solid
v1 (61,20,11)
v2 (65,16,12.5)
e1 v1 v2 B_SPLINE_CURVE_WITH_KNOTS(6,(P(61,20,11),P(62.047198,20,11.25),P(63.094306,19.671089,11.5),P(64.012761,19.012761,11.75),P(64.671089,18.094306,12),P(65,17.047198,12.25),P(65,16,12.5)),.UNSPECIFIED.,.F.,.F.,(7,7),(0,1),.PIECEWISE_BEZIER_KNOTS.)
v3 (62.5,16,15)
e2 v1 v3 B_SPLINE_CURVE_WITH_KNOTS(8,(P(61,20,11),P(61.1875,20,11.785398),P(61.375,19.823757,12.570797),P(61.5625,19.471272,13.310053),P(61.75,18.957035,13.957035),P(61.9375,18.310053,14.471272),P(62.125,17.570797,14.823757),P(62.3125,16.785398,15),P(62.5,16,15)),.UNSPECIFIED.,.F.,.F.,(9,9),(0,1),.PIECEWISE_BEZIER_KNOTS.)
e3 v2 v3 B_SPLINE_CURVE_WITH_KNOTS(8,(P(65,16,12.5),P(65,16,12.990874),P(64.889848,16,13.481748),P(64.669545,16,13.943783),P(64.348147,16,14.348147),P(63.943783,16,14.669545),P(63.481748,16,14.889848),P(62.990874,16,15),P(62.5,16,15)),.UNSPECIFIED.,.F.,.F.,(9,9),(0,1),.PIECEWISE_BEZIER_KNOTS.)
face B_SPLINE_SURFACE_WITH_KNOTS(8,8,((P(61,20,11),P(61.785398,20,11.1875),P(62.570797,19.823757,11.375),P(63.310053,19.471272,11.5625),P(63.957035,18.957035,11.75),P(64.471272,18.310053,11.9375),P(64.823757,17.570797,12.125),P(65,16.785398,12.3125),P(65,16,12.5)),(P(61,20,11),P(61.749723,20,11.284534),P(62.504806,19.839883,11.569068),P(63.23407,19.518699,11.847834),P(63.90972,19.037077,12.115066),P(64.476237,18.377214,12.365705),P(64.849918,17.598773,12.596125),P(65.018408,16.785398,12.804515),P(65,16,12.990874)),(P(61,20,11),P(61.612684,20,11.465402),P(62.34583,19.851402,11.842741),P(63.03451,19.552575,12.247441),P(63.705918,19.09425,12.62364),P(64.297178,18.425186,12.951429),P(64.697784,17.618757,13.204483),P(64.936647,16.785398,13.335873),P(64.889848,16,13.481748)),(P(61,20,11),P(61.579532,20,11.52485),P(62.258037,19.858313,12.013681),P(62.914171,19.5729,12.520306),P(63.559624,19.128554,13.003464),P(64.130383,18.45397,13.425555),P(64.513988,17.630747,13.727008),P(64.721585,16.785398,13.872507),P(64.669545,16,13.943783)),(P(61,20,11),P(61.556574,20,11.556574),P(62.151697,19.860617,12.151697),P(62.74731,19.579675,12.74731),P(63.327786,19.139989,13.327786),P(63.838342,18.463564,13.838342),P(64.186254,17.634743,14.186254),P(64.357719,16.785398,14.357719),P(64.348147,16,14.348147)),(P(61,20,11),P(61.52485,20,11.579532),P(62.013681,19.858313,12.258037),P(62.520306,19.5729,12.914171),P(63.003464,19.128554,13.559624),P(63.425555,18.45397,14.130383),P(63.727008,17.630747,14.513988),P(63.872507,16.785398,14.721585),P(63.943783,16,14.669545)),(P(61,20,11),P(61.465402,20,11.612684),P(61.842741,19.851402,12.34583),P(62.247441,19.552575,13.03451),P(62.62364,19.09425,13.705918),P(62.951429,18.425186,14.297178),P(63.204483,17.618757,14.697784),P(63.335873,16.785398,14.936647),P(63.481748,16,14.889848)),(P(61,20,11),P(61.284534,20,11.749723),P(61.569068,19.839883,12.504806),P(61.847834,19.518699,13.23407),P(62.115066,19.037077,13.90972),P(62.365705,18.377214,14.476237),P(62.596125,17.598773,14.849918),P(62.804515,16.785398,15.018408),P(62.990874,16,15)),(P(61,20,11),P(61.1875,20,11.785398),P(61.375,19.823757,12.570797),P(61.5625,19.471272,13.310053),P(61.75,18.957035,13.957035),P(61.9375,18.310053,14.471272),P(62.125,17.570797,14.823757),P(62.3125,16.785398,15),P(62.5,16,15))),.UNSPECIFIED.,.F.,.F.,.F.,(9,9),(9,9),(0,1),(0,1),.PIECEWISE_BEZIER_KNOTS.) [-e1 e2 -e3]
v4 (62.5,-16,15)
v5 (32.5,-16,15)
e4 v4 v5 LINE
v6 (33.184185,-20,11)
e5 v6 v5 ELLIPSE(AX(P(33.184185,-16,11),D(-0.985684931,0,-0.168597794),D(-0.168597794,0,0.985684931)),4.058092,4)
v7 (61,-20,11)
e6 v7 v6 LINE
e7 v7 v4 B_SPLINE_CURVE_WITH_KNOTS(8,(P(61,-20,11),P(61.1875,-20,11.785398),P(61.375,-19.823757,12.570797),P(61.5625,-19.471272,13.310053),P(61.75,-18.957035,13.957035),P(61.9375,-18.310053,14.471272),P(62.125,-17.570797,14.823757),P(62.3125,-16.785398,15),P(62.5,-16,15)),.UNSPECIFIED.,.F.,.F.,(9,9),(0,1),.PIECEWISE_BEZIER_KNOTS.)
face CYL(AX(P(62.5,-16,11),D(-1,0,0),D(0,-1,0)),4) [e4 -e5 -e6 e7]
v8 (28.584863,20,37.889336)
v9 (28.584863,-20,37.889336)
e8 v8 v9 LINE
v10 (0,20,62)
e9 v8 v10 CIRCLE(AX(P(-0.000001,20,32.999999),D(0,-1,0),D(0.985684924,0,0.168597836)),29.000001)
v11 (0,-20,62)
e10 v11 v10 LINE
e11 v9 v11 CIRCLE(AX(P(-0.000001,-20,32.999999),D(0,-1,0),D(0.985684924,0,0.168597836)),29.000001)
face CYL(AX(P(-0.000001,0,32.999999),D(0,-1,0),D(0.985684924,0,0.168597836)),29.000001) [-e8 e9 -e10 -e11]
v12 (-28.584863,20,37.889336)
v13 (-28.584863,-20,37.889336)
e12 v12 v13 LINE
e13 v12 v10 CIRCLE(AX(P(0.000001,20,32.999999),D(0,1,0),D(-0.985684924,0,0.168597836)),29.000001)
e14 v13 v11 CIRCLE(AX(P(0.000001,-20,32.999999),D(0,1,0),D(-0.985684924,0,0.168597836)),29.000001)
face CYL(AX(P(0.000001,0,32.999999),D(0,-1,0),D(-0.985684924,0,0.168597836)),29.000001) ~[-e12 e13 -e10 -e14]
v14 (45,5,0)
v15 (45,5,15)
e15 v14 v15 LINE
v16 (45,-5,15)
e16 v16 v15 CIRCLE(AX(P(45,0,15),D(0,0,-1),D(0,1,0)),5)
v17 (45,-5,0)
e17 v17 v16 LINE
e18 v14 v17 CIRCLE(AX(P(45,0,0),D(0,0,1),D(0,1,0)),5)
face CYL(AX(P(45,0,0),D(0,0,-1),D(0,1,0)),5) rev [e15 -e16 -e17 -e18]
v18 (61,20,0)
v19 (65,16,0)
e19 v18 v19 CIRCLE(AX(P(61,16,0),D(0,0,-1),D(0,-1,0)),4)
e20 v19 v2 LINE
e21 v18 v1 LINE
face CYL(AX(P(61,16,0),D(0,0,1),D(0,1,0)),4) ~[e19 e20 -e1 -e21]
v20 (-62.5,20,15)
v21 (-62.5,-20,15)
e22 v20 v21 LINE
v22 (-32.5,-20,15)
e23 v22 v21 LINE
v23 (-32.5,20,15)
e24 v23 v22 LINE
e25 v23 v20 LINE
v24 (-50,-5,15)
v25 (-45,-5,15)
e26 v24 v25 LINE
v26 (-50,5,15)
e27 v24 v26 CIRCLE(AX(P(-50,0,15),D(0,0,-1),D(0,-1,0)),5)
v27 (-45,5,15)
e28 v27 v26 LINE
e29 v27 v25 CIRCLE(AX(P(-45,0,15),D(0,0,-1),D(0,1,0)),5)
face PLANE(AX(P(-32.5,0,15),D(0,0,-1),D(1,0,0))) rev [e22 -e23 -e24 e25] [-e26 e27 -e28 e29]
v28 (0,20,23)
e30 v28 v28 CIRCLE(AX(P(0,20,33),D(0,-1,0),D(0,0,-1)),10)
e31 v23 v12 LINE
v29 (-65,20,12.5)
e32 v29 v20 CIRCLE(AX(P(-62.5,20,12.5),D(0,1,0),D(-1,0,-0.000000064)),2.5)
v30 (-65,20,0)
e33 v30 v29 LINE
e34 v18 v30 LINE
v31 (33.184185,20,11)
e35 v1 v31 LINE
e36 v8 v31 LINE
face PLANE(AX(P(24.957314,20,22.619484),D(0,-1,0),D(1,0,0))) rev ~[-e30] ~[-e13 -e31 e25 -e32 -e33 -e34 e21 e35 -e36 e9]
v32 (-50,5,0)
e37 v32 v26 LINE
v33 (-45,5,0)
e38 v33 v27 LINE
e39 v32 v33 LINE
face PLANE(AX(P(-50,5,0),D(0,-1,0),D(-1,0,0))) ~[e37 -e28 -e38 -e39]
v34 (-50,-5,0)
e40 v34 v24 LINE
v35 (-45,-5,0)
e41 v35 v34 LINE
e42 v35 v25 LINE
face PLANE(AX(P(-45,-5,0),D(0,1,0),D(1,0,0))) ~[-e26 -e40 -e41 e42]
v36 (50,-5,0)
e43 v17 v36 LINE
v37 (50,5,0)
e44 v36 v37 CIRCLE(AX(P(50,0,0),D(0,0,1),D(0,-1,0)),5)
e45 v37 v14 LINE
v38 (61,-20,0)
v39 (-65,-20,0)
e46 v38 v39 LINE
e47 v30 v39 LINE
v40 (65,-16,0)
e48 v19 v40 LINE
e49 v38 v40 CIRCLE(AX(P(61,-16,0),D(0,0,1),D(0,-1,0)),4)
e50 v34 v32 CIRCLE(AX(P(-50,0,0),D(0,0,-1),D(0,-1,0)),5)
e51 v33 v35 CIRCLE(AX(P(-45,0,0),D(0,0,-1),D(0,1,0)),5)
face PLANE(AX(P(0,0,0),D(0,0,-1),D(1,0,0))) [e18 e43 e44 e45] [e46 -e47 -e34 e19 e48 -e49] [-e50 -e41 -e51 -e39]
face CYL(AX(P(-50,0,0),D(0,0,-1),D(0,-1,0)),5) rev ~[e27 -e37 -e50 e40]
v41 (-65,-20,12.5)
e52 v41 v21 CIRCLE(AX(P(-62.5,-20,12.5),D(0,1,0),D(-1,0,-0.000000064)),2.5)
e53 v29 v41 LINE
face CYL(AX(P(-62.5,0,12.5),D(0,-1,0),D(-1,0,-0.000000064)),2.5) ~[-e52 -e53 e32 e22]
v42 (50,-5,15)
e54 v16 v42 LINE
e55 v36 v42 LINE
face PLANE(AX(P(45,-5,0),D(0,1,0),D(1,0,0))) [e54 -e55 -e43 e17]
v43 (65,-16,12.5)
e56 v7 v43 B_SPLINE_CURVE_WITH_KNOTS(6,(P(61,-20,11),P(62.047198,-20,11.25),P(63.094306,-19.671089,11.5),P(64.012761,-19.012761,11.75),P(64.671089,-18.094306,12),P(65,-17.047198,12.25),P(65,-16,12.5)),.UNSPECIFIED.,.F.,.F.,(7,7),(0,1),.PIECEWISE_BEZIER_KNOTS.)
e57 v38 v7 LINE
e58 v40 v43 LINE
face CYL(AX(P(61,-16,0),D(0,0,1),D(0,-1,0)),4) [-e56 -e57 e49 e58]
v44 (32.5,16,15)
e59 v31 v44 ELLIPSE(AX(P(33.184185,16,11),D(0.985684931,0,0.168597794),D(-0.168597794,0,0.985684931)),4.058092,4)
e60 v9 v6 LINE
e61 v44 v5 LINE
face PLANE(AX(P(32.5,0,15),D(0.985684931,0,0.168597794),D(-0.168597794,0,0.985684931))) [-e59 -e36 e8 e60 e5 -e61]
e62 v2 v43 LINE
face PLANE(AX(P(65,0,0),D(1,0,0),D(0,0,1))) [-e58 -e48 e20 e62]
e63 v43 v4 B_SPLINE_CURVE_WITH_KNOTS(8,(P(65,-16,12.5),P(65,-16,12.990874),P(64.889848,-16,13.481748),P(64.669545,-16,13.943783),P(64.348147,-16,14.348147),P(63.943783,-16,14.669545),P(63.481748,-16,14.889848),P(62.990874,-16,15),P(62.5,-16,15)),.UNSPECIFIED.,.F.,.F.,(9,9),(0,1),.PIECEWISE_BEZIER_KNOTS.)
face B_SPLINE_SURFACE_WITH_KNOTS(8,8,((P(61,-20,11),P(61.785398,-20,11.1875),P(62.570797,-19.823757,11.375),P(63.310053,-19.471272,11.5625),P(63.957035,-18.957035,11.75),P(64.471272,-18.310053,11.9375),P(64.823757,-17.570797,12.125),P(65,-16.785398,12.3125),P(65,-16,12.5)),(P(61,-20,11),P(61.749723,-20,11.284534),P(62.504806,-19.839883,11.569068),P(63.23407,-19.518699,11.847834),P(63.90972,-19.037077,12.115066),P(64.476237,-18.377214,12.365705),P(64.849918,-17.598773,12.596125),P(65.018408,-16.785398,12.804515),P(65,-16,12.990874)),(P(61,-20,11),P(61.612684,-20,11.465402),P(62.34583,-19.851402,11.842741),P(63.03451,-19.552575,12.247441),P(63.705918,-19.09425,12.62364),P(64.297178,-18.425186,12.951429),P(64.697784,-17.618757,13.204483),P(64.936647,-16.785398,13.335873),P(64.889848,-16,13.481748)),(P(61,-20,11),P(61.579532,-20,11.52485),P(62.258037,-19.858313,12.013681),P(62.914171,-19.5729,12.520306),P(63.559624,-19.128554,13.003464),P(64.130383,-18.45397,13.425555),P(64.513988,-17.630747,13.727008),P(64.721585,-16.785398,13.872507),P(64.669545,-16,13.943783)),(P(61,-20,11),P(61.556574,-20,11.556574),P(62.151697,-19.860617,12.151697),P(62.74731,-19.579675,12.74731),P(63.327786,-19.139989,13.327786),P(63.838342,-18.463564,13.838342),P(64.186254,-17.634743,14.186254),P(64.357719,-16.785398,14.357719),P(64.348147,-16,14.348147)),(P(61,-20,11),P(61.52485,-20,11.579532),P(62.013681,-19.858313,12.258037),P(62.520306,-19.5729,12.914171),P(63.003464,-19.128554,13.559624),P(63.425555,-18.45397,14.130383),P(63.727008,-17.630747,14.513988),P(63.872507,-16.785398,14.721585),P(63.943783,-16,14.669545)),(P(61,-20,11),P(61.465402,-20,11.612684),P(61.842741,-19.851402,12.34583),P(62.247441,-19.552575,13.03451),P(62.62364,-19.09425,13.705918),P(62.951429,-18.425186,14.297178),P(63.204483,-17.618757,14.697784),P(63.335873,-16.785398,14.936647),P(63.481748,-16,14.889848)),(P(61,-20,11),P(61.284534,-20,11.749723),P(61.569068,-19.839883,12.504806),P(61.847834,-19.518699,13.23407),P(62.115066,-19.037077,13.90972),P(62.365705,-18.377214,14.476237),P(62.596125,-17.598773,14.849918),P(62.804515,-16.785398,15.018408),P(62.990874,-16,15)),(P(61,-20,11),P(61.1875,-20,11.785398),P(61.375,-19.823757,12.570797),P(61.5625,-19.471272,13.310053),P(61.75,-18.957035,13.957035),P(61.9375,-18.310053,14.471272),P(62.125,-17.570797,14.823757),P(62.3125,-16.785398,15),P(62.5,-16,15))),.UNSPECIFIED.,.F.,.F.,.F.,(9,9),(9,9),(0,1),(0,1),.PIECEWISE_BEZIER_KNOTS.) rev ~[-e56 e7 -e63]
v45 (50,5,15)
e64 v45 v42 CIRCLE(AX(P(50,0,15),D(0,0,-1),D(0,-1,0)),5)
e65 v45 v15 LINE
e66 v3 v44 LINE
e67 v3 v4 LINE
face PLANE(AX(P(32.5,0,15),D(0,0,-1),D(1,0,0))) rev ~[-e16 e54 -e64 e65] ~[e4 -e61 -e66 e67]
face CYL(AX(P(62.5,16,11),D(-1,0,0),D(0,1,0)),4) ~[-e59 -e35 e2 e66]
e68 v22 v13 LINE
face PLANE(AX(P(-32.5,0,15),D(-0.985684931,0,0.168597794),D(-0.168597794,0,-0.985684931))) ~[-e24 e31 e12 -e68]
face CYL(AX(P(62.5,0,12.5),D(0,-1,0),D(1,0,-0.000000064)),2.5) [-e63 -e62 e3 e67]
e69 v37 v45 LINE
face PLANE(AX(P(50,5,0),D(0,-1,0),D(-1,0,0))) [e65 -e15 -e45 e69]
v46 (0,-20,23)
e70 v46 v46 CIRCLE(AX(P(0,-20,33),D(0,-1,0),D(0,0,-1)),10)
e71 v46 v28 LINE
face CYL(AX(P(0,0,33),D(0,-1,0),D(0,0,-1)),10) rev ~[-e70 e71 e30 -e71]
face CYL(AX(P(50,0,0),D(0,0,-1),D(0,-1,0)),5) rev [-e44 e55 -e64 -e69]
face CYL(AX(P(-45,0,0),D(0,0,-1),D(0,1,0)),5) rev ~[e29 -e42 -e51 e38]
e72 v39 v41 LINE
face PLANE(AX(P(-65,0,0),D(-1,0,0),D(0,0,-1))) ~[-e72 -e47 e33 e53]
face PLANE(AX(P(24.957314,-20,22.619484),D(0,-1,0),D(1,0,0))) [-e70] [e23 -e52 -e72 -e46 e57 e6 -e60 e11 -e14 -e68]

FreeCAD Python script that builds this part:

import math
import FreeCAD as App
import Part
import Sketcher
Q = App.Units.Quantity


def edges_at(feature, points):
    """Names of the edges that pass closest to the given points."""
    edges = feature.Shape.Edges
    near = lambda p: min(range(len(edges)), key=lambda i: edges[i].distToShape(Part.Vertex(*p))[0])
    return sorted({f"Edge{near(p) + 1}" for p in points})

doc = App.newDocument("Part")
body = doc.addObject("PartDesign::Body", "Body")

sketch1 = body.newObject("Sketcher::SketchObject", "Sketch")
sketch1.AttachmentSupport = (doc.getObject("XZ_Plane"), [""])
sketch1.MapMode = "FlatFace"
sketch1.addGeometry(Part.LineSegment(App.Vector(0, 23, 0), App.Vector(0, 0, 0)), False)
sketch1.addGeometry(Part.LineSegment(App.Vector(0, 0, 0), App.Vector(65, 0, 0)), False)
sketch1.addGeometry(Part.LineSegment(App.Vector(65, 0, 0), App.Vector(65, 12.5, 0)), False)
sketch1.addGeometry(Part.ArcOfCircle(Part.Circle(App.Vector(62.5, 12.5, 0), App.Vector(0, 0, 1), 2.5), math.radians(0), math.radians(90)), False)
sketch1.addGeometry(Part.LineSegment(App.Vector(62.5, 15, 0), App.Vector(32.5, 15, 0)), False)
sketch1.addGeometry(Part.LineSegment(App.Vector(32.5, 15, 0), App.Vector(28.6, 37.9, 0)), False)
sketch1.addGeometry(Part.ArcOfCircle(Part.Circle(App.Vector(0, 33, 0), App.Vector(0, 0, 1), 29), math.radians(10), math.radians(90)), False)
sketch1.addGeometry(Part.LineSegment(App.Vector(0, 62, 0), App.Vector(0, 43, 0)), False)
sketch1.addGeometry(Part.ArcOfCircle(Part.Circle(App.Vector(0, 33, 0), App.Vector(0, 0, 1), 10), math.radians(-90), math.radians(90)), False)
sketch1.addConstraint(Sketcher.Constraint("Coincident", 0, 2, 1, 1))
sketch1.addConstraint(Sketcher.Constraint("Coincident", 1, 2, 2, 1))
sketch1.addConstraint(Sketcher.Constraint("Tangent", 2, 2, 3, 1))
sketch1.addConstraint(Sketcher.Constraint("Tangent", 3, 2, 4, 1))
sketch1.addConstraint(Sketcher.Constraint("Coincident", 4, 2, 5, 1))
sketch1.addConstraint(Sketcher.Constraint("Tangent", 5, 2, 6, 1))
sketch1.addConstraint(Sketcher.Constraint("Coincident", 6, 2, 7, 1))
sketch1.addConstraint(Sketcher.Constraint("Coincident", 7, 2, 8, 2))
sketch1.addConstraint(Sketcher.Constraint("Coincident", 8, 1, 0, 1))
sketch1.addConstraint(Sketcher.Constraint("Vertical", 0))
sketch1.addConstraint(Sketcher.Constraint("Horizontal", 1))
sketch1.addConstraint(Sketcher.Constraint("Vertical", 2))
sketch1.addConstraint(Sketcher.Constraint("Horizontal", 4))
sketch1.addConstraint(Sketcher.Constraint("Vertical", 7))
sketch1.addConstraint(Sketcher.Constraint("Coincident", 0, 2, -1, 1))
sketch1.addConstraint(Sketcher.Constraint("Coincident", 8, 3, 6, 3))
sketch1.addConstraint(Sketcher.Constraint("PointOnObject", 6, 3, -2))
sketch1.addConstraint(Sketcher.Constraint("PointOnObject", 6, 2, -2))
sketch1.addConstraint(Sketcher.Constraint("Radius", 6, Q("29.000001 mm")))
sketch1.addConstraint(Sketcher.Constraint("Radius", 8, Q("10 mm")))
sketch1.addConstraint(Sketcher.Constraint("Radius", 3, Q("2.5 mm")))
sketch1.addConstraint(Sketcher.Constraint("DistanceX", 1, 1, 1, 2, Q("65 mm")))
sketch1.addConstraint(Sketcher.Constraint("DistanceX", 4, 2, 4, 1, Q("30 mm")))
sketch1.addConstraint(Sketcher.Constraint("DistanceY", 0, 2, 0, 1, Q("23 mm")))
sketch1.addConstraint(Sketcher.Constraint("DistanceY", 2, 1, 2, 2, Q("12.5 mm")))
pad1 = body.newObject("PartDesign::Pad", "Pad")
pad1.Profile = sketch1
pad1.Length = 40
pad1.Midplane = True

sketch2 = body.newObject("Sketcher::SketchObject", "Sketch001")
sketch2.AttachmentSupport = (doc.getObject("XY_Plane"), [""])
sketch2.MapMode = "FlatFace"
sketch2.addGeometry(Part.ArcOfCircle(Part.Circle(App.Vector(45, 0, 0), App.Vector(0, 0, 1), 5), math.radians(90), math.radians(270)), False)
sketch2.addGeometry(Part.LineSegment(App.Vector(45, -5, 0), App.Vector(50, -5, 0)), False)
sketch2.addGeometry(Part.ArcOfCircle(Part.Circle(App.Vector(50, 0, 0), App.Vector(0, 0, 1), 5), math.radians(-90), math.radians(90)), False)
sketch2.addGeometry(Part.LineSegment(App.Vector(50, 5, 0), App.Vector(45, 5, 0)), False)
sketch2.addConstraint(Sketcher.Constraint("Tangent", 0, 2, 1, 1))
sketch2.addConstraint(Sketcher.Constraint("Tangent", 1, 2, 2, 1))
sketch2.addConstraint(Sketcher.Constraint("Tangent", 2, 2, 3, 1))
sketch2.addConstraint(Sketcher.Constraint("Tangent", 3, 2, 0, 1))
sketch2.addConstraint(Sketcher.Constraint("Horizontal", 1))
sketch2.addConstraint(Sketcher.Constraint("Horizontal", 3))
sketch2.addConstraint(Sketcher.Constraint("PointOnObject", 0, 3, -1))
sketch2.addConstraint(Sketcher.Constraint("Radius", 0, Q("5 mm")))
sketch2.addConstraint(Sketcher.Constraint("DistanceX", 1, 1, 1, 2, Q("5 mm")))
sketch2.addConstraint(Sketcher.Constraint("DistanceX", -1, 1, 0, 3, Q("45 mm")))
pocket1 = body.newObject("PartDesign::Pocket", "Pocket")
pocket1.Profile = sketch2
pocket1.Type = "ThroughAll"
pocket1.Reversed = True
doc.recompute()

mirrored = body.newObject("PartDesign::Mirrored", "Mirrored")
mirrored.Originals = [pad1, pocket1]
mirrored.MirrorPlane = (doc.getObject("YZ_Plane"), [""])
body.Tip = mirrored
doc.recompute()

fillet = body.newObject("PartDesign::Fillet", "Fillet")
fillet.Base = (mirrored, edges_at(mirrored, [(65, -20, 6.25), (65, 20, 6.25)]))
fillet.Radius = 4

doc.recompute()
